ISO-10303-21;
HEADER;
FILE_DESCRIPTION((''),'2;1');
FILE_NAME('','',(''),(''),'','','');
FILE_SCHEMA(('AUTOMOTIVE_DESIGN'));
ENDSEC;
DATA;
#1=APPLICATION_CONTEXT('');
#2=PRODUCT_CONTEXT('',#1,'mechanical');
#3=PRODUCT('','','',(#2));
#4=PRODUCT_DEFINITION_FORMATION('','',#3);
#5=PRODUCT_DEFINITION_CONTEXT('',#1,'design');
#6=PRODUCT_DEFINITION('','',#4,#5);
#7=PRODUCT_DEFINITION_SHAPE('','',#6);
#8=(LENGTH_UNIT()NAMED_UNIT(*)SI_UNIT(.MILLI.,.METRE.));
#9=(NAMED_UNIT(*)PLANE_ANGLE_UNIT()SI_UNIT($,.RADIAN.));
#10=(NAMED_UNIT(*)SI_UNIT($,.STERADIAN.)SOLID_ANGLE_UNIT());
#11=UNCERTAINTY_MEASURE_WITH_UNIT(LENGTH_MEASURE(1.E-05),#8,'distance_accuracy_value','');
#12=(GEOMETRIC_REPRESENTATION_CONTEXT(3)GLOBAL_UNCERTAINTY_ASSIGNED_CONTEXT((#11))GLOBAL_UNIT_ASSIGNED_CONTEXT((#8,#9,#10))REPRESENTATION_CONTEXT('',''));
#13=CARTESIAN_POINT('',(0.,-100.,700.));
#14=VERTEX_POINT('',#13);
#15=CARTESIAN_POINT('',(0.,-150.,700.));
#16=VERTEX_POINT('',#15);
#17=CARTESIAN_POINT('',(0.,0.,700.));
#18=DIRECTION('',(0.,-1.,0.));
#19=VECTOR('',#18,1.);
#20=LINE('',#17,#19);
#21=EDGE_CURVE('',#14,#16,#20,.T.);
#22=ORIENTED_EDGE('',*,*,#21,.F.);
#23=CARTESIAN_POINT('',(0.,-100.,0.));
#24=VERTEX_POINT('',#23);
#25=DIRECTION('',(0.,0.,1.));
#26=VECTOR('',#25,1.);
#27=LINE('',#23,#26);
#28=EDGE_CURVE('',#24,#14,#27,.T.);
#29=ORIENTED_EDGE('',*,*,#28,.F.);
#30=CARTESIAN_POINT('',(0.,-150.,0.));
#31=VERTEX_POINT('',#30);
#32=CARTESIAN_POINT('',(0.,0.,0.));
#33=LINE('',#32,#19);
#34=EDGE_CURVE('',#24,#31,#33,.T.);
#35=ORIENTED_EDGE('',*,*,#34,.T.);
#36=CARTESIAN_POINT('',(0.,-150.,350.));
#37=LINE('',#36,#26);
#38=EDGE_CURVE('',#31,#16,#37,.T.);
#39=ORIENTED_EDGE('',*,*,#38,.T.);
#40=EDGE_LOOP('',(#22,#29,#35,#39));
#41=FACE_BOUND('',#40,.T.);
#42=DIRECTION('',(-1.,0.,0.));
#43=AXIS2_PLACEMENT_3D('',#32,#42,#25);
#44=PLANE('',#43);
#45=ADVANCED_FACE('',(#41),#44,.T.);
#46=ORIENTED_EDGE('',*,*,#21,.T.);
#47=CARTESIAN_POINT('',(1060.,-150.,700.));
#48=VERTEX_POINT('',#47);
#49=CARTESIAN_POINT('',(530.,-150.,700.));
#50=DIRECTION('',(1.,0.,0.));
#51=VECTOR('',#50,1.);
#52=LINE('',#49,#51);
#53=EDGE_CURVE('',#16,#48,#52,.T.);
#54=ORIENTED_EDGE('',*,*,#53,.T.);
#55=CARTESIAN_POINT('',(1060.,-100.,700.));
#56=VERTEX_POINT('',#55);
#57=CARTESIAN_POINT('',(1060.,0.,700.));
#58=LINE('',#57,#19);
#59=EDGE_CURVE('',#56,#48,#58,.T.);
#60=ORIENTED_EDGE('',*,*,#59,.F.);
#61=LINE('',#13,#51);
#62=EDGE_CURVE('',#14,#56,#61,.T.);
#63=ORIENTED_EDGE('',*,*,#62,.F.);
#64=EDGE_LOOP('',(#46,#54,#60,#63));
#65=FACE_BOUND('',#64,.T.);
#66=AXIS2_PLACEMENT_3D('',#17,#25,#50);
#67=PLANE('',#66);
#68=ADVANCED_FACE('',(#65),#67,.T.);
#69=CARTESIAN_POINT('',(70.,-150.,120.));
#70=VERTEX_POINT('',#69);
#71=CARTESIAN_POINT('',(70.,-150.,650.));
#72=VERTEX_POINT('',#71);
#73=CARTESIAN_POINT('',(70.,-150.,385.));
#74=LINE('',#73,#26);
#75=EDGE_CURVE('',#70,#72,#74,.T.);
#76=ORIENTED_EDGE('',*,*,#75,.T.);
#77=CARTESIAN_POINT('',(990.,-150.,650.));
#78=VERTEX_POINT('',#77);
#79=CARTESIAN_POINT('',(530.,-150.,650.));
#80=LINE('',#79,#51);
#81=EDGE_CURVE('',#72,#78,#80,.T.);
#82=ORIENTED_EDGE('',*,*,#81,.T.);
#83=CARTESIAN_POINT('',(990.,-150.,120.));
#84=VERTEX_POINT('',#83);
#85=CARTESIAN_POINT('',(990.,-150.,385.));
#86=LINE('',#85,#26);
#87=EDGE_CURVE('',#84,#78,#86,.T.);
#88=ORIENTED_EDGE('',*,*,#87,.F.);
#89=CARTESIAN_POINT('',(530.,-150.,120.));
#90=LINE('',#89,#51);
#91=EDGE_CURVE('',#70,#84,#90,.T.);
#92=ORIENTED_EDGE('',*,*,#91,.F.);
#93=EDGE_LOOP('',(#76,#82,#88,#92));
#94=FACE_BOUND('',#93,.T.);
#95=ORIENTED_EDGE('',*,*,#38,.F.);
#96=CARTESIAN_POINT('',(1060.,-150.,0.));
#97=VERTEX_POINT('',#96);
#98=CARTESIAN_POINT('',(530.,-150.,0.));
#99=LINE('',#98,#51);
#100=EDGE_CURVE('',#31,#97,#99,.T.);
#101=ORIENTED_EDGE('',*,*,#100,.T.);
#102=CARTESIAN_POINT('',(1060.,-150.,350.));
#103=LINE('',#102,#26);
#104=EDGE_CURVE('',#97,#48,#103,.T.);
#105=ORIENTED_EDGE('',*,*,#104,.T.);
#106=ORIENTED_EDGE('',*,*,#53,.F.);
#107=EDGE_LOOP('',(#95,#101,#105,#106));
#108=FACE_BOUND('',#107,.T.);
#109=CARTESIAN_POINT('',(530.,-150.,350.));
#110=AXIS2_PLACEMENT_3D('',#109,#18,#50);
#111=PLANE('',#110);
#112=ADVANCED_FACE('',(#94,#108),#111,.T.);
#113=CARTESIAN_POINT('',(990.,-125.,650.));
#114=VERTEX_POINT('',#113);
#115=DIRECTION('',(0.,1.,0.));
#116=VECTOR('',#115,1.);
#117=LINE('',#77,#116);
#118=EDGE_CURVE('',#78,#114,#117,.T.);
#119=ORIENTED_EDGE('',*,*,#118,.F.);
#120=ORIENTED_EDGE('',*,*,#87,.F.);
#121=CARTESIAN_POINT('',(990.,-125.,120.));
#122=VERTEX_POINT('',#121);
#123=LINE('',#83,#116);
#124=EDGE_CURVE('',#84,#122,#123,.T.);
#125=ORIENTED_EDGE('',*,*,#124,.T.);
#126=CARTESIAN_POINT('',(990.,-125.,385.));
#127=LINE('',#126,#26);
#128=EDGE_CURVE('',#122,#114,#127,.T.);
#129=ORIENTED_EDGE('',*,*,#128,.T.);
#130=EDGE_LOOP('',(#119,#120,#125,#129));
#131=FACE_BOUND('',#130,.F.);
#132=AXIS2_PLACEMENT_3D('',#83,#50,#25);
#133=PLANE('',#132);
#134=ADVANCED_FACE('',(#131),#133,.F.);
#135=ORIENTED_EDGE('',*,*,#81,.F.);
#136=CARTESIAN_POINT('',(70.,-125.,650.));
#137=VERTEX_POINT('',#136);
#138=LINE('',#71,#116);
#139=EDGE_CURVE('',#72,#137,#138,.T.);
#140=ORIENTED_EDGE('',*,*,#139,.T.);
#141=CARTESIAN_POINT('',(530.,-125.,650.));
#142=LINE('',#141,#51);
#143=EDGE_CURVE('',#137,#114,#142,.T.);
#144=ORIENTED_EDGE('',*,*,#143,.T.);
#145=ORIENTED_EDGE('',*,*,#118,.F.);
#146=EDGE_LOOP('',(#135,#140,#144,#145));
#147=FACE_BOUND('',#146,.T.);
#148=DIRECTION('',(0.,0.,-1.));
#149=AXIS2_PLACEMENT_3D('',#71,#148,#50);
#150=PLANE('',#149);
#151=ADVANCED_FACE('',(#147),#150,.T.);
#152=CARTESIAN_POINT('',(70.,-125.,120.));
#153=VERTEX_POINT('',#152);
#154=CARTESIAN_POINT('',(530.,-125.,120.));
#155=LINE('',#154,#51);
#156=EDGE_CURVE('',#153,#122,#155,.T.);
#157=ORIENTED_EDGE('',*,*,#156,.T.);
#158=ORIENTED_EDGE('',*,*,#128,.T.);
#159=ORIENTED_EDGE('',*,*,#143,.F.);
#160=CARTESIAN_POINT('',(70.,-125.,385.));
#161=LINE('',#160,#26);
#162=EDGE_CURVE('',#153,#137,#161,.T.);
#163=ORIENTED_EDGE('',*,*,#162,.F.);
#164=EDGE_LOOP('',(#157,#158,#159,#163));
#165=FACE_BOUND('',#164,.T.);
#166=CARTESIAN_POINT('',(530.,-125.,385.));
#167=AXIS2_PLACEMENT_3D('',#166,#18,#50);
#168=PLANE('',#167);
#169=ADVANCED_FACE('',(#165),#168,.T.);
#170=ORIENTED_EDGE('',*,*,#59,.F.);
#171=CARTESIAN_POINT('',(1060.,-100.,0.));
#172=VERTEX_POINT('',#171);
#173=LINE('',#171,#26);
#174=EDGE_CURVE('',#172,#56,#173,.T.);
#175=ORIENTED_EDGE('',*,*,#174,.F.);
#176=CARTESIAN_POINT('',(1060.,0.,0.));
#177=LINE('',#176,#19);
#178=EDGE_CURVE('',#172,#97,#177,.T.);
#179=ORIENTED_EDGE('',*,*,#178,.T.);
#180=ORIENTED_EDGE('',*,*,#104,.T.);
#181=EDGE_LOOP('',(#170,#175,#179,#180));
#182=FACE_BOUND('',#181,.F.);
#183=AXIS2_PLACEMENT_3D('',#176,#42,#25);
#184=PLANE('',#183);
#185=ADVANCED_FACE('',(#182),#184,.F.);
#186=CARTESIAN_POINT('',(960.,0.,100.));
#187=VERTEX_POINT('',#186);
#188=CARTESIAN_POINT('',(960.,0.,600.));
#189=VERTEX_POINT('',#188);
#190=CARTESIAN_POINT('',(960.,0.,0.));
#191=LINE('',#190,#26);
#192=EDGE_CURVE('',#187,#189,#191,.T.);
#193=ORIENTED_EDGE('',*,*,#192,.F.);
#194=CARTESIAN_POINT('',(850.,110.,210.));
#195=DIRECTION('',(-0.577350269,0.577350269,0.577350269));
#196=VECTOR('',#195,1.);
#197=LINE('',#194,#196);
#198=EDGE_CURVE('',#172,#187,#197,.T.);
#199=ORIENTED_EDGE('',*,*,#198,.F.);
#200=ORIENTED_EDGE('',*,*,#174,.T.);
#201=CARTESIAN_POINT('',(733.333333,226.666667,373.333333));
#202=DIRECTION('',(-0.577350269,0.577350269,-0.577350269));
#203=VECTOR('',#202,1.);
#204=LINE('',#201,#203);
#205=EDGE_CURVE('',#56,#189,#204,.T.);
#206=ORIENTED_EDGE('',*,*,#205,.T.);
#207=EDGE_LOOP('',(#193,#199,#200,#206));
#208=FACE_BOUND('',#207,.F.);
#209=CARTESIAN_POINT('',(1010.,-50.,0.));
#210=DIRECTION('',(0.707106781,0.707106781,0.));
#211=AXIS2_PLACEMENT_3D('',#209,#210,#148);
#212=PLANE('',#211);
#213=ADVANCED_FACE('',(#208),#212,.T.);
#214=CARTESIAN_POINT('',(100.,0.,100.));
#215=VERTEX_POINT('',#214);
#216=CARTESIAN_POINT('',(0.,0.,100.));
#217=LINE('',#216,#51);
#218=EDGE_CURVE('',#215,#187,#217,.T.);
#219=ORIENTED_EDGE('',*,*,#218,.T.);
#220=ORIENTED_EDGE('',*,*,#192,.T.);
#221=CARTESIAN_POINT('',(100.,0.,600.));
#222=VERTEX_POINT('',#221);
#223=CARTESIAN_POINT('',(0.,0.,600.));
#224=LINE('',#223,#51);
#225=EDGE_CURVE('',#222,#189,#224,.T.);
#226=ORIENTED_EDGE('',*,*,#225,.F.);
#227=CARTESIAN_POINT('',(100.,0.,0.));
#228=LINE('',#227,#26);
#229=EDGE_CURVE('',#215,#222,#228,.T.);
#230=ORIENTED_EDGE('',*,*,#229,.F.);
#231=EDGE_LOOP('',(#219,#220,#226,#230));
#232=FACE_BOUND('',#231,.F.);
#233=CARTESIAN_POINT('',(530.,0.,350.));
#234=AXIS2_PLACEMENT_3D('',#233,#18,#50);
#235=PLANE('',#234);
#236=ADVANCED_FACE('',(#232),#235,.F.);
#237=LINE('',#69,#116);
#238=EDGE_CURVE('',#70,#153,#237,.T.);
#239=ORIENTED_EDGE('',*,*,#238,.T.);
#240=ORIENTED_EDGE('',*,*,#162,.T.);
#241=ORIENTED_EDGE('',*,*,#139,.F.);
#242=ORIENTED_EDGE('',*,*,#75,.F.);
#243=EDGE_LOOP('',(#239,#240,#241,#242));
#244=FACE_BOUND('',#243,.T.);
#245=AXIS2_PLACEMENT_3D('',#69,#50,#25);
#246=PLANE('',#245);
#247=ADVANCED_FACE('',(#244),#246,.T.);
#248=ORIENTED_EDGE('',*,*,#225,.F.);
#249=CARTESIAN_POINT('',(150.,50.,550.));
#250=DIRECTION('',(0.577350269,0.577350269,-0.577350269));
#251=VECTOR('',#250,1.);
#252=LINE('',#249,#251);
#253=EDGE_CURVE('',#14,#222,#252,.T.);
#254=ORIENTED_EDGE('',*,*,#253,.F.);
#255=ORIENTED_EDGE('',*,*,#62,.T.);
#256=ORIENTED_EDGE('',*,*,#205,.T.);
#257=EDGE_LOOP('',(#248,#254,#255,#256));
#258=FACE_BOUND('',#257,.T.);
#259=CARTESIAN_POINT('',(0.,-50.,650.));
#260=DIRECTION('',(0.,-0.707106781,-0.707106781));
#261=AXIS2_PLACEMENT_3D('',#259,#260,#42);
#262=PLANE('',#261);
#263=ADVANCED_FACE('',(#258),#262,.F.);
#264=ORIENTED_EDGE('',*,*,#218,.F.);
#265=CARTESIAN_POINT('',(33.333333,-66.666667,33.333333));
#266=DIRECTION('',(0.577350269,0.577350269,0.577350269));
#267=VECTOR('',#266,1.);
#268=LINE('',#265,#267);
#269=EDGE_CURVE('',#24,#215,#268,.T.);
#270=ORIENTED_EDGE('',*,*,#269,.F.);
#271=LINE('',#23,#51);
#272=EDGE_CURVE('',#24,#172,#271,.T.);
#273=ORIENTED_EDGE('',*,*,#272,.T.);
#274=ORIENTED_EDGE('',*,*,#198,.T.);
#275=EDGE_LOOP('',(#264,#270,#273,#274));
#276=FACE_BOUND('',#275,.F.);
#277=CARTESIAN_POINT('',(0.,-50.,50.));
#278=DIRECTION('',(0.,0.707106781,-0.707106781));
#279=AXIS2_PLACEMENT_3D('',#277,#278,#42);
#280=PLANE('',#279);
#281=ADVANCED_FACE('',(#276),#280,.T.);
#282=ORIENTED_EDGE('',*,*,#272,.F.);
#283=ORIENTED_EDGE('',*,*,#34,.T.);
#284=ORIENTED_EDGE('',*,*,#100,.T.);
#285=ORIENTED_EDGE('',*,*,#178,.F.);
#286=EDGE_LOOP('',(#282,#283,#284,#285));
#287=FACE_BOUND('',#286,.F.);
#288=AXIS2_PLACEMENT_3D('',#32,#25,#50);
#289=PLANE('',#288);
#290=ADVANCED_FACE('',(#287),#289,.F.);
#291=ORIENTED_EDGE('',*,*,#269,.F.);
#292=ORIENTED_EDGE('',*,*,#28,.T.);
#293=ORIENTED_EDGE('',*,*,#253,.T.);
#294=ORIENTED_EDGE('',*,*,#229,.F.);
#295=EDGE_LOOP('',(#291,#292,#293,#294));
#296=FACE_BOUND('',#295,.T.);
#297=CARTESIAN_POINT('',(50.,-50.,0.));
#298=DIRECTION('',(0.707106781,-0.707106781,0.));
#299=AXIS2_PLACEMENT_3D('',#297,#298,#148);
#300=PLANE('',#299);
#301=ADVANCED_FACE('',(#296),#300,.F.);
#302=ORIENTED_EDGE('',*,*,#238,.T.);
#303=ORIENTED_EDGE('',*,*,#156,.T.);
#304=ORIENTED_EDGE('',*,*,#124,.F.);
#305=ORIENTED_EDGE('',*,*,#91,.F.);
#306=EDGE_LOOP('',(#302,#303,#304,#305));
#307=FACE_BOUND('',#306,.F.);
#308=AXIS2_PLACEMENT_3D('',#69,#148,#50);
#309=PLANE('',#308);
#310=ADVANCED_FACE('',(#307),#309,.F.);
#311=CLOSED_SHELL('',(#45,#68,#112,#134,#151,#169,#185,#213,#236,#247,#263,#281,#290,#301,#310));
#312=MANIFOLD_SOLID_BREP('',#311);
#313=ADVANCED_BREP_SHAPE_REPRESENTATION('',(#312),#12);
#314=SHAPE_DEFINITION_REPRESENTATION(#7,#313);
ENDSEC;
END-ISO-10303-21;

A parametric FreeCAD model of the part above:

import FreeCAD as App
import Part
import Sketcher


def edges_at(feature, points):
    """Names of the edges that pass closest to the given points."""
    edges = feature.Shape.Edges
    near = lambda p: min(range(len(edges)), key=lambda i: edges[i].distToShape(Part.Vertex(*p))[0])
    return sorted({f"Edge{near(p) + 1}" for p in points})

doc = App.newDocument("Part")
body = doc.addObject("PartDesign::Body", "Body")

# Sketch on XZ plane
sketch1 = body.newObject("Sketcher::SketchObject", "Sketch")
sketch1.AttachmentSupport = (doc.getObject("XZ_Plane"), [""])
sketch1.MapMode = "FlatFace"
sketch1.addGeometry([
    Part.LineSegment(App.Vector(0, 700, 0), App.Vector(0, 0, 0)),
    Part.LineSegment(App.Vector(0, 0, 0), App.Vector(1060, 0, 0)),
    Part.LineSegment(App.Vector(1060, 0, 0), App.Vector(1060, 700, 0)),
    Part.LineSegment(App.Vector(1060, 700, 0), App.Vector(0, 700, 0)),
], False)
sketch1.addConstraint([
    Sketcher.Constraint("Coincident", 0, 2, 1, 1),
    Sketcher.Constraint("Coincident", 1, 2, 2, 1),
    Sketcher.Constraint("Coincident", 2, 2, 3, 1),
    Sketcher.Constraint("Coincident", 3, 2, 0, 1),
    Sketcher.Constraint("Vertical", 0),
    Sketcher.Constraint("Horizontal", 1),
    Sketcher.Constraint("Vertical", 2),
    Sketcher.Constraint("Horizontal", 3),
    Sketcher.Constraint("Coincident", 0, 2, -1, 1),
    Sketcher.Constraint("DistanceX", 1, 1, 1, 2, 1060.0),
    Sketcher.Constraint("DistanceY", 0, 2, 0, 1, 700.0),
])
pad1 = body.newObject("PartDesign::Pad", "Pad")
pad1.Profile = sketch1
pad1.Length = 150
doc.recompute()

chamfer = body.newObject("PartDesign::Chamfer", "Chamfer")
chamfer.Base = (pad1, edges_at(pad1, [
    (1060, 0, 350),
    (530, 0, 700),
    (0, 0, 350),
    (530, 0, 0),
]))
chamfer.Size = 100

# Sketch on XZ plane
sketch2 = body.newObject("Sketcher::SketchObject", "Sketch001")
sketch2.AttachmentSupport = (doc.getObject("XZ_Plane"), [""])
sketch2.MapMode = "FlatFace"
sketch2.AttachmentOffset = App.Placement(App.Vector(0, 0, 150), App.Rotation())
sketch2.addGeometry([
    Part.LineSegment(App.Vector(70, 650, 0), App.Vector(70, 120, 0)),
    Part.LineSegment(App.Vector(70, 120, 0), App.Vector(990, 120, 0)),
    Part.LineSegment(App.Vector(990, 120, 0), App.Vector(990, 650, 0)),
    Part.LineSegment(App.Vector(990, 650, 0), App.Vector(70, 650, 0)),
], False)
sketch2.addConstraint([
    Sketcher.Constraint("Coincident", 0, 2, 1, 1),
    Sketcher.Constraint("Coincident", 1, 2, 2, 1),
    Sketcher.Constraint("Coincident", 2, 2, 3, 1),
    Sketcher.Constraint("Coincident", 3, 2, 0, 1),
    Sketcher.Constraint("Vertical", 0),
    Sketcher.Constraint("Horizontal", 1),
    Sketcher.Constraint("Vertical", 2),
    Sketcher.Constraint("Horizontal", 3),
    Sketcher.Constraint("DistanceX", 1, 1, 1, 2, 920.0),
    Sketcher.Constraint("DistanceY", 0, 2, 0, 1, 530.0),
    Sketcher.Constraint("DistanceX", -1, 1, 0, 2, 70.0),
    Sketcher.Constraint("DistanceY", -1, 1, 0, 2, 120.0),
])
pocket1 = body.newObject("PartDesign::Pocket", "Pocket")
pocket1.Profile = sketch2
pocket1.Length = 25

doc.recompute()
